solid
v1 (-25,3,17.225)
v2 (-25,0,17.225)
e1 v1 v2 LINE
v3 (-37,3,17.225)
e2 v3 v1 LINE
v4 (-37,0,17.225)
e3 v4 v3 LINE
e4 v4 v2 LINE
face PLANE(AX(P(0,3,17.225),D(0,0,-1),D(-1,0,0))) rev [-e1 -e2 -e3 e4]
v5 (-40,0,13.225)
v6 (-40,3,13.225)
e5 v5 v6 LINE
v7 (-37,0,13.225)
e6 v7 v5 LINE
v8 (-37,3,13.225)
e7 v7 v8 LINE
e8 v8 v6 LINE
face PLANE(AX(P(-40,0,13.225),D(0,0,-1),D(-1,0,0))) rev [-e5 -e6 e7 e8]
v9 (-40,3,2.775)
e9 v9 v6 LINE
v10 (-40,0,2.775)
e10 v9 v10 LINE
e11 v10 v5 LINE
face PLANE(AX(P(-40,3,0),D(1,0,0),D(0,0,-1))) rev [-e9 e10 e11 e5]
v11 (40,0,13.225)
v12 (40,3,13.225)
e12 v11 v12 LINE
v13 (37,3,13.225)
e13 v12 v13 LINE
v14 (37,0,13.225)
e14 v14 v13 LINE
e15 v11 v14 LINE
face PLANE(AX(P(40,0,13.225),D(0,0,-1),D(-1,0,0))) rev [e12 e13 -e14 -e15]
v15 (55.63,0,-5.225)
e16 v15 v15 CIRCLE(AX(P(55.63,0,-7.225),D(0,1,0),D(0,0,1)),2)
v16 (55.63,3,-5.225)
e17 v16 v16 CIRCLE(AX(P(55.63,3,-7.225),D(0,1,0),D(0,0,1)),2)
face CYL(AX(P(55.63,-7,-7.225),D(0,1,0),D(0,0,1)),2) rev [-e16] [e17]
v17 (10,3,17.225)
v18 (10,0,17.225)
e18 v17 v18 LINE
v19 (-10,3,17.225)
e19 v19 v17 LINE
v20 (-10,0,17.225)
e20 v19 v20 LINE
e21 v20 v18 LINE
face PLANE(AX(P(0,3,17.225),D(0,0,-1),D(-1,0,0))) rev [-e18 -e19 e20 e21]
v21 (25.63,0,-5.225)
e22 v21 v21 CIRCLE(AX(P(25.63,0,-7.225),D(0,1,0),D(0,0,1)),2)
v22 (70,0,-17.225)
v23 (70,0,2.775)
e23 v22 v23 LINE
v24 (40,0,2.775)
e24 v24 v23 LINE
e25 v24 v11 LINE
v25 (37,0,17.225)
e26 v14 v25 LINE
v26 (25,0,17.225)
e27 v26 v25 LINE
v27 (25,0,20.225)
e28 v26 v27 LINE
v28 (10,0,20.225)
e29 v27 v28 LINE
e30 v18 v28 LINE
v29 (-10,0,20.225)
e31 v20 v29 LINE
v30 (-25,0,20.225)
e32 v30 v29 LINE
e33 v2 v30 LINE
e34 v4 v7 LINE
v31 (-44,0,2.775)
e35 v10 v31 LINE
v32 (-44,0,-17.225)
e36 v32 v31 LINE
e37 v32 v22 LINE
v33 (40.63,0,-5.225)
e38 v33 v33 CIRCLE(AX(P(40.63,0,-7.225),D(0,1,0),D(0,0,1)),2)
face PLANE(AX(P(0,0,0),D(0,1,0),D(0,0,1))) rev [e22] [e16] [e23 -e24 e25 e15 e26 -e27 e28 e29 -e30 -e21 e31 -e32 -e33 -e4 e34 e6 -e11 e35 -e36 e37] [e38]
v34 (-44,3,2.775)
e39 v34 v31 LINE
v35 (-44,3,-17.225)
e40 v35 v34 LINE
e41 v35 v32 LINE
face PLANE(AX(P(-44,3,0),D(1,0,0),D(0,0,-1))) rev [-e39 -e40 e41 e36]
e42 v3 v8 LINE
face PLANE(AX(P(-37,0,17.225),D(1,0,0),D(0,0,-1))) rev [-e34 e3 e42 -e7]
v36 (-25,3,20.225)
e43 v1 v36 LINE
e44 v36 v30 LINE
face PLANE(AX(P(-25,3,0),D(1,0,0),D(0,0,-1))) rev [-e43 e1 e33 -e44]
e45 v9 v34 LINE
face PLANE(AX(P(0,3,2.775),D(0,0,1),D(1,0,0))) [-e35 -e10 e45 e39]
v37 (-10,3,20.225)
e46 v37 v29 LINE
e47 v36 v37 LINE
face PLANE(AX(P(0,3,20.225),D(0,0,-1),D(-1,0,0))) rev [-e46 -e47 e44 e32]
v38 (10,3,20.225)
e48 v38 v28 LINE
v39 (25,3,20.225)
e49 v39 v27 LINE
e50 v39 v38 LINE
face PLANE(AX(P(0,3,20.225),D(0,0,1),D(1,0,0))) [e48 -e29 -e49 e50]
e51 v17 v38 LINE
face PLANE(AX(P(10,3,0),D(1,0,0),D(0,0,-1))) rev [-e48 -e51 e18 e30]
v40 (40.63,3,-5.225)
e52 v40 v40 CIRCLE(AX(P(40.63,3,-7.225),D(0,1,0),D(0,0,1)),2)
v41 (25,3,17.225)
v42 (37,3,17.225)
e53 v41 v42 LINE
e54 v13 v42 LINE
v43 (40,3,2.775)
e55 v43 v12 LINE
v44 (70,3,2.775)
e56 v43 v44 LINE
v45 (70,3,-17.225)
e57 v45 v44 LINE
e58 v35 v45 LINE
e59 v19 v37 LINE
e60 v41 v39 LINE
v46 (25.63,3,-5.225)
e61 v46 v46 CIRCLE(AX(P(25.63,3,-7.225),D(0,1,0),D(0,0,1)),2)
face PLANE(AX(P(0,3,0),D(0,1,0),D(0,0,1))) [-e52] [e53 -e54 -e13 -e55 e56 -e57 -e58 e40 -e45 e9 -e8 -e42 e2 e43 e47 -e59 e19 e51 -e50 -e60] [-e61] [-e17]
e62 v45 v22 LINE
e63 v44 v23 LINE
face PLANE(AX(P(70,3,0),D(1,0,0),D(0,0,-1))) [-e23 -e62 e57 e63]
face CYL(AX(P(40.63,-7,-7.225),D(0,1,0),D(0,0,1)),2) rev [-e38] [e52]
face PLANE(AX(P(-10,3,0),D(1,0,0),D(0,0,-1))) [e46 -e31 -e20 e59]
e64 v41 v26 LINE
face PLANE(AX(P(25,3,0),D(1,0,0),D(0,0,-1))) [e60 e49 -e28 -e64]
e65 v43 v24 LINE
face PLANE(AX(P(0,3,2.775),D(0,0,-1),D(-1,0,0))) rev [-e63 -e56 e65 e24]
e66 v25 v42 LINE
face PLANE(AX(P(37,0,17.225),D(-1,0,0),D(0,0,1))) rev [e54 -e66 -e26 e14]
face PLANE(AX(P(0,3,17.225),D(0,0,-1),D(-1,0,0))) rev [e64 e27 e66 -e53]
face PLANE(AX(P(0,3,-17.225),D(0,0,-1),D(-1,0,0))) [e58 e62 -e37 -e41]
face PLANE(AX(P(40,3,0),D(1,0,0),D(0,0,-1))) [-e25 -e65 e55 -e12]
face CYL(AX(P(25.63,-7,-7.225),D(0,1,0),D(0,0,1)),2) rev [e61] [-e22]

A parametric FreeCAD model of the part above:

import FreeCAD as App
import Part
import Sketcher
from FreeCAD import Vector
Q = App.Units.Quantity


def add_polygon(sketch, points):
    """Adds a closed chain of lines whose ends are joined by coincident constraints."""
    first, n = sketch.GeometryCount, len(points)
    for a, b in zip(points, points[1:] + points[:1]):
        sketch.addGeometry(Part.LineSegment(App.Vector(*a, 0), App.Vector(*b, 0)), False)
    for i in range(n):
        sketch.addConstraint(Sketcher.Constraint("Coincident", first + i, 2, first + (i + 1) % n, 1))

doc = App.newDocument("Part")
body = doc.addObject("PartDesign::Body", "Body")

# Sketch on XZ plane
sketch1 = doc.addObject("Sketcher::SketchObject", "Sketch")
body.addObject(sketch1)
sketch1.AttachmentSupport = (doc.XZ_Plane, [""])
sketch1.MapMode = "FlatFace"
add_polygon(sketch1, [(-40, 2.8), (-40, 17.2), (-25, 17.2), (-25, 20.2), (-10, 20.2), (-10, 17.2), (10, 17.2), (10, 20.2), (25, 20.2), (25, 17.2), (40, 17.2), (40, 2.8), (70, 2.8), (70, -17.2), (-44, -17.2), (-44, 2.8)])  # lines 0-15
sketch1.addConstraint([
    Sketcher.Constraint("Vertical", 0),
    Sketcher.Constraint("Horizontal", 1),
    Sketcher.Constraint("Vertical", 2),
    Sketcher.Constraint("Horizontal", 3),
    Sketcher.Constraint("Vertical", 4),
    Sketcher.Constraint("Horizontal", 5),
    Sketcher.Constraint("Vertical", 6),
    Sketcher.Constraint("Horizontal", 7),
    Sketcher.Constraint("Vertical", 8),
    Sketcher.Constraint("Horizontal", 9),
    Sketcher.Constraint("Vertical", 10),
    Sketcher.Constraint("Horizontal", 11),
    Sketcher.Constraint("Vertical", 12),
    Sketcher.Constraint("Horizontal", 13),
    Sketcher.Constraint("Vertical", 14),
    Sketcher.Constraint("Horizontal", 15),
    Sketcher.Constraint("Symmetric", 3, 2, 6, 2, -2),
    Sketcher.Constraint("Symmetric", 1, 2, 8, 2, -2),
    Sketcher.Constraint("Symmetric", 10, 2, 15, 2, -2),
    Sketcher.Constraint("Horizontal", 1, 2, 4, 2),
    Sketcher.Constraint("Equal", 1, 3),
    Sketcher.Constraint("Equal", 5, 12),
    Sketcher.Constraint("DistanceX", 1, 1, 1, 2, Q("15 mm")),
    Sketcher.Constraint("DistanceX", 5, 1, 5, 2, Q("20 mm")),
    Sketcher.Constraint("DistanceX", 11, 1, 11, 2, Q("30 mm")),
    Sketcher.Constraint("DistanceX", 13, 2, 13, 1, Q("114 mm")),
    Sketcher.Constraint("DistanceY", 2, 1, 2, 2, Q("3 mm")),
    Sketcher.Constraint("DistanceY", 0, 1, 0, 2, Q("14.45 mm")),
    Sketcher.Constraint("DistanceY", -1, 1, 0, 2, Q("17.225 mm")),
])
pad1 = doc.addObject("PartDesign::Pad", "Pad")
body.addObject(pad1)
pad1.Profile = sketch1
pad1.Length = 3
pad1.Reversed = True

# Sketch on XZ plane
sketch2 = doc.addObject("Sketcher::SketchObject", "Sketch001")
body.addObject(sketch2)
sketch2.AttachmentSupport = (doc.XZ_Plane, [""])
sketch2.MapMode = "FlatFace"
sketch2.AttachmentOffset = App.Placement(Vector(0, 0, -3), App.Rotation())
sketch2.addGeometry([
    Part.Circle(Vector(55.6, -7.2, 0), Vector(0, 0, 1), 2),
    Part.Circle(Vector(40.6, -7.2, 0), Vector(0, 0, 1), 2),
    Part.Circle(Vector(25.6, -7.2, 0), Vector(0, 0, 1), 2),
], False)
sketch2.addConstraint([
    Sketcher.Constraint("Equal", 0, 1),
    Sketcher.Constraint("Equal", 1, 2),
    Sketcher.Constraint("Horizontal", 0, 3, 1, 3),
    Sketcher.Constraint("Horizontal", 1, 3, 2, 3),
    Sketcher.Constraint("Diameter", 0, Q("4 mm")),
    Sketcher.Constraint("DistanceX", 1, 3, 0, 3, Q("15 mm")),
    Sketcher.Constraint("DistanceX", 2, 3, 1, 3, Q("15 mm")),
    Sketcher.Constraint("DistanceX", -1, 1, 0, 3, Q("55.63 mm")),
    Sketcher.Constraint("DistanceY", 0, 3, -1, 1, Q("7.225 mm")),
])
pocket1 = doc.addObject("PartDesign::Pocket", "Pocket")
body.addObject(pocket1)
pocket1.Profile = sketch2
pocket1.Length = 10
pocket1.Reversed = True

# Sketch on XZ plane
sketch3 = doc.addObject("Sketcher::SketchObject", "Sketch002")
body.addObject(sketch3)
sketch3.AttachmentSupport = (doc.XZ_Plane, [""])
sketch3.MapMode = "FlatFace"
sketch3.AttachmentOffset = App.Placement(Vector(0, 0, -3), App.Rotation())
add_polygon(sketch3, [(-40, 13.2), (-40, 17.2), (-37, 17.2), (-37, 13.2)])  # lines 0-3
add_polygon(sketch3, [(37, 13.2), (37, 17.2), (40, 17.2), (40, 13.2)])  # lines 4-7
sketch3.addConstraint([
    Sketcher.Constraint("Vertical", 0),
    Sketcher.Constraint("Horizontal", 1),
    Sketcher.Constraint("Vertical", 2),
    Sketcher.Constraint("Horizontal", 3),
    Sketcher.Constraint("Vertical", 4),
    Sketcher.Constraint("Horizontal", 5),
    Sketcher.Constraint("Vertical", 6),
    Sketcher.Constraint("Horizontal", 7),
    Sketcher.Constraint("Symmetric", 1, 2, 4, 2, -2),
    Sketcher.Constraint("Symmetric", 3, 2, 6, 2, -2),
    Sketcher.Constraint("DistanceX", 1, 1, 1, 2, Q("3 mm")),
    Sketcher.Constraint("DistanceY", 0, 1, 0, 2, Q("4 mm")),
    Sketcher.Constraint("DistanceX", 0, 2, -1, 1, Q("40 mm")),
    Sketcher.Constraint("DistanceY", -1, 1, 0, 2, Q("17.225 mm")),
])
pocket2 = doc.addObject("PartDesign::Pocket", "Pocket001")
body.addObject(pocket2)
pocket2.Profile = sketch3
pocket2.Length = 3
pocket2.Reversed = True

doc.recompute()
